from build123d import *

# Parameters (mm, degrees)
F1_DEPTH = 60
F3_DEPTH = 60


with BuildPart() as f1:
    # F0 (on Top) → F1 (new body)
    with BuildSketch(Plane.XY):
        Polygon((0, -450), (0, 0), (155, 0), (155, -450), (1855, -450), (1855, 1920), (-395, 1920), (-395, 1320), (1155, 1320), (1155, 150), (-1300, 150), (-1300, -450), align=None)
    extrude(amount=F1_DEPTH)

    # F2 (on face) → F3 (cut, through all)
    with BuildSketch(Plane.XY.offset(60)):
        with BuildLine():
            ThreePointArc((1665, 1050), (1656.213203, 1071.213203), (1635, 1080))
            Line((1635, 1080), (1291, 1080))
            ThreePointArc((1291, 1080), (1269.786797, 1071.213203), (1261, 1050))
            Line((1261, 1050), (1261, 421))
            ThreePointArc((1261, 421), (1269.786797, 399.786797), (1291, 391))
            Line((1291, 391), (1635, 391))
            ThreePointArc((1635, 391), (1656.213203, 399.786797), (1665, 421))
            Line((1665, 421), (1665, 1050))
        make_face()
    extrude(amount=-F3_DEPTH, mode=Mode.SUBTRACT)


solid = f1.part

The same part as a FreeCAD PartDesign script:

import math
import FreeCAD as App
import Part
import Sketcher

V = App.Vector
Q = App.Units.Quantity

doc = App.newDocument("Part")
params = doc.addObject("Spreadsheet::Sheet", "Params")
for row, (alias, value) in enumerate([
    ("sketch1_width", "155 mm"),
    ("sketch1_width2", "1700 mm"),
    ("sketch1_width3", "2250 mm"),
    ("sketch1_width4", "1550 mm"),
    ("sketch1_width5", "2455 mm"),
    ("pad1_length", "60 mm"),
    ("sketch2_radius", "30.000001 mm"),
    ("sketch2_width", "344 mm"),
    ("sketch2_height", "629 mm"),
], start=1):
    params.set(f"A{row}", alias)
    params.set(f"B{row}", "=" + value)
    params.setAlias(f"B{row}", alias)

body = doc.addObject("PartDesign::Body", "Body")

sketch1 = body.newObject("Sketcher::SketchObject", "Sketch")
sketch1.AttachmentSupport = (doc.getObject("XY_Plane"), [""])
sketch1.MapMode = "FlatFace"
sketch1.addGeometry([
    Part.LineSegment(V(0, -450, 0), V(0, 0, 0)),
    Part.LineSegment(V(0, 0, 0), V(155, 0, 0)),
    Part.LineSegment(V(155, 0, 0), V(155, -450, 0)),
    Part.LineSegment(V(155, -450, 0), V(1855, -450, 0)),
    Part.LineSegment(V(1855, -450, 0), V(1855, 1920, 0)),
    Part.LineSegment(V(1855, 1920, 0), V(-395, 1920, 0)),
    Part.LineSegment(V(-395, 1920, 0), V(-395, 1320, 0)),
    Part.LineSegment(V(-395, 1320, 0), V(1155, 1320, 0)),
    Part.LineSegment(V(1155, 1320, 0), V(1155, 150, 0)),
    Part.LineSegment(V(1155, 150, 0), V(-1300, 150, 0)),
    Part.LineSegment(V(-1300, 150, 0), V(-1300, -450, 0)),
    Part.LineSegment(V(-1300, -450, 0), V(0, -450, 0)),
], False)
sketch1.addConstraint([
    Sketcher.Constraint("Coincident", 0, 2, 1, 1),
    Sketcher.Constraint("Coincident", 1, 2, 2, 1),
    Sketcher.Constraint("Coincident", 2, 2, 3, 1),
    Sketcher.Constraint("Coincident", 3, 2, 4, 1),
    Sketcher.Constraint("Coincident", 4, 2, 5, 1),
    Sketcher.Constraint("Coincident", 5, 2, 6, 1),
    Sketcher.Constraint("Coincident", 6, 2, 7, 1),
    Sketcher.Constraint("Coincident", 7, 2, 8, 1),
    Sketcher.Constraint("Coincident", 8, 2, 9, 1),
    Sketcher.Constraint("Coincident", 9, 2, 10, 1),
    Sketcher.Constraint("Coincident", 10, 2, 11, 1),
    Sketcher.Constraint("Coincident", 11, 2, 0, 1),
    Sketcher.Constraint("Vertical", 0),
    Sketcher.Constraint("Horizontal", 1),
    Sketcher.Constraint("Vertical", 2),
    Sketcher.Constraint("Horizontal", 3),
    Sketcher.Constraint("Vertical", 4),
    Sketcher.Constraint("Horizontal", 5),
    Sketcher.Constraint("Vertical", 6),
    Sketcher.Constraint("Horizontal", 7),
    Sketcher.Constraint("Vertical", 8),
    Sketcher.Constraint("Horizontal", 9),
    Sketcher.Constraint("Vertical", 10),
    Sketcher.Constraint("Horizontal", 11),
    Sketcher.Constraint("Coincident", 0, 2, -1, 1),
    Sketcher.Constraint("Horizontal", 3, 2, 10, 2),
    Sketcher.Constraint("Equal", 6, 10),
    Sketcher.Constraint("DistanceX", 1, 1, 1, 2, Q("155 mm")),
    Sketcher.Constraint("DistanceX", 3, 1, 3, 2, Q("1700 mm")),
    Sketcher.Constraint("DistanceX", 5, 2, 5, 1, Q("2250 mm")),
    Sketcher.Constraint("DistanceX", 7, 1, 7, 2, Q("1550 mm")),
    Sketcher.Constraint("DistanceX", 9, 2, 9, 1, Q("2455 mm")),
    Sketcher.Constraint("DistanceY", 0, 1, 0, 2, Q("450 mm")),
    Sketcher.Constraint("DistanceY", 4, 1, 4, 2, Q("2370 mm")),
    Sketcher.Constraint("DistanceY", 6, 2, 6, 1, Q("600 mm")),
])
sketch1.setExpression("Constraints[27]", "Params.sketch1_width")
sketch1.setExpression("Constraints[28]", "Params.sketch1_width2")
sketch1.setExpression("Constraints[29]", "Params.sketch1_width3")
sketch1.setExpression("Constraints[30]", "Params.sketch1_width4")
sketch1.setExpression("Constraints[31]", "Params.sketch1_width5")
pad1 = body.newObject("PartDesign::Pad", "Pad")
pad1.Profile = sketch1
pad1.setExpression("Length", "Params.pad1_length")

sketch2 = body.newObject("Sketcher::SketchObject", "Sketch001")
sketch2.AttachmentSupport = (doc.getObject("XY_Plane"), [""])
sketch2.MapMode = "FlatFace"
sketch2.AttachmentOffset = App.Placement(V(0, 0, 60), App.Rotation())
sketch2.addGeometry([
    Part.ArcOfCircle(Part.Circle(V(1634.999999, 1049.999999, 0), V(0, 0, 1), 30.000001), math.radians(0.000003), math.radians(89.999997)),
    Part.LineSegment(V(1635, 1080, 0), V(1291, 1080, 0)),
    Part.ArcOfCircle(Part.Circle(V(1291.000001, 1049.999999, 0), V(0, 0, 1), 30.000001), math.radians(90.000003), math.radians(179.999997)),
    Part.LineSegment(V(1261, 1050, 0), V(1261, 421, 0)),
    Part.ArcOfCircle(Part.Circle(V(1291.000001, 421.000001, 0), V(0, 0, 1), 30.000001), math.radians(-179.999997), math.radians(-90.000003)),
    Part.LineSegment(V(1291, 391, 0), V(1635, 391, 0)),
    Part.ArcOfCircle(Part.Circle(V(1634.999999, 421.000001, 0), V(0, 0, 1), 30.000001), math.radians(-89.999997), math.radians(-0.000003)),
    Part.LineSegment(V(1665, 421, 0), V(1665, 1050, 0)),
], False)
sketch2.addConstraint([
    Sketcher.Constraint("Tangent", 0, 2, 1, 1),
    Sketcher.Constraint("Tangent", 1, 2, 2, 1),
    Sketcher.Constraint("Tangent", 2, 2, 3, 1),
    Sketcher.Constraint("Tangent", 3, 2, 4, 1),
    Sketcher.Constraint("Tangent", 4, 2, 5, 1),
    Sketcher.Constraint("Tangent", 5, 2, 6, 1),
    Sketcher.Constraint("Tangent", 6, 2, 7, 1),
    Sketcher.Constraint("Tangent", 7, 2, 0, 1),
    Sketcher.Constraint("Horizontal", 1),
    Sketcher.Constraint("Vertical", 3),
    Sketcher.Constraint("Horizontal", 5),
    Sketcher.Constraint("Vertical", 7),
    Sketcher.Constraint("Equal", 0, 2),
    Sketcher.Constraint("Equal", 2, 4),
    Sketcher.Constraint("Equal", 4, 6),
    Sketcher.Constraint("Radius", 0, Q("30.000001 mm")),
    Sketcher.Constraint("DistanceX", 1, 2, 1, 1, Q("344 mm")),
    Sketcher.Constraint("DistanceY", 3, 2, 3, 1, Q("629 mm")),
    Sketcher.Constraint("DistanceX", -1, 1, 0, 3, Q("1634.999999 mm")),
    Sketcher.Constraint("DistanceY", -1, 1, 0, 3, Q("1049.999999 mm")),
])
sketch2.setExpression("Constraints[15]", "Params.sketch2_radius")
sketch2.setExpression("Constraints[16]", "Params.sketch2_width")
sketch2.setExpression("Constraints[17]", "Params.sketch2_height")
pocket1 = body.newObject("PartDesign::Pocket", "Pocket")
pocket1.Profile = sketch2
pocket1.Type = "ThroughAll"

doc.recompute()
